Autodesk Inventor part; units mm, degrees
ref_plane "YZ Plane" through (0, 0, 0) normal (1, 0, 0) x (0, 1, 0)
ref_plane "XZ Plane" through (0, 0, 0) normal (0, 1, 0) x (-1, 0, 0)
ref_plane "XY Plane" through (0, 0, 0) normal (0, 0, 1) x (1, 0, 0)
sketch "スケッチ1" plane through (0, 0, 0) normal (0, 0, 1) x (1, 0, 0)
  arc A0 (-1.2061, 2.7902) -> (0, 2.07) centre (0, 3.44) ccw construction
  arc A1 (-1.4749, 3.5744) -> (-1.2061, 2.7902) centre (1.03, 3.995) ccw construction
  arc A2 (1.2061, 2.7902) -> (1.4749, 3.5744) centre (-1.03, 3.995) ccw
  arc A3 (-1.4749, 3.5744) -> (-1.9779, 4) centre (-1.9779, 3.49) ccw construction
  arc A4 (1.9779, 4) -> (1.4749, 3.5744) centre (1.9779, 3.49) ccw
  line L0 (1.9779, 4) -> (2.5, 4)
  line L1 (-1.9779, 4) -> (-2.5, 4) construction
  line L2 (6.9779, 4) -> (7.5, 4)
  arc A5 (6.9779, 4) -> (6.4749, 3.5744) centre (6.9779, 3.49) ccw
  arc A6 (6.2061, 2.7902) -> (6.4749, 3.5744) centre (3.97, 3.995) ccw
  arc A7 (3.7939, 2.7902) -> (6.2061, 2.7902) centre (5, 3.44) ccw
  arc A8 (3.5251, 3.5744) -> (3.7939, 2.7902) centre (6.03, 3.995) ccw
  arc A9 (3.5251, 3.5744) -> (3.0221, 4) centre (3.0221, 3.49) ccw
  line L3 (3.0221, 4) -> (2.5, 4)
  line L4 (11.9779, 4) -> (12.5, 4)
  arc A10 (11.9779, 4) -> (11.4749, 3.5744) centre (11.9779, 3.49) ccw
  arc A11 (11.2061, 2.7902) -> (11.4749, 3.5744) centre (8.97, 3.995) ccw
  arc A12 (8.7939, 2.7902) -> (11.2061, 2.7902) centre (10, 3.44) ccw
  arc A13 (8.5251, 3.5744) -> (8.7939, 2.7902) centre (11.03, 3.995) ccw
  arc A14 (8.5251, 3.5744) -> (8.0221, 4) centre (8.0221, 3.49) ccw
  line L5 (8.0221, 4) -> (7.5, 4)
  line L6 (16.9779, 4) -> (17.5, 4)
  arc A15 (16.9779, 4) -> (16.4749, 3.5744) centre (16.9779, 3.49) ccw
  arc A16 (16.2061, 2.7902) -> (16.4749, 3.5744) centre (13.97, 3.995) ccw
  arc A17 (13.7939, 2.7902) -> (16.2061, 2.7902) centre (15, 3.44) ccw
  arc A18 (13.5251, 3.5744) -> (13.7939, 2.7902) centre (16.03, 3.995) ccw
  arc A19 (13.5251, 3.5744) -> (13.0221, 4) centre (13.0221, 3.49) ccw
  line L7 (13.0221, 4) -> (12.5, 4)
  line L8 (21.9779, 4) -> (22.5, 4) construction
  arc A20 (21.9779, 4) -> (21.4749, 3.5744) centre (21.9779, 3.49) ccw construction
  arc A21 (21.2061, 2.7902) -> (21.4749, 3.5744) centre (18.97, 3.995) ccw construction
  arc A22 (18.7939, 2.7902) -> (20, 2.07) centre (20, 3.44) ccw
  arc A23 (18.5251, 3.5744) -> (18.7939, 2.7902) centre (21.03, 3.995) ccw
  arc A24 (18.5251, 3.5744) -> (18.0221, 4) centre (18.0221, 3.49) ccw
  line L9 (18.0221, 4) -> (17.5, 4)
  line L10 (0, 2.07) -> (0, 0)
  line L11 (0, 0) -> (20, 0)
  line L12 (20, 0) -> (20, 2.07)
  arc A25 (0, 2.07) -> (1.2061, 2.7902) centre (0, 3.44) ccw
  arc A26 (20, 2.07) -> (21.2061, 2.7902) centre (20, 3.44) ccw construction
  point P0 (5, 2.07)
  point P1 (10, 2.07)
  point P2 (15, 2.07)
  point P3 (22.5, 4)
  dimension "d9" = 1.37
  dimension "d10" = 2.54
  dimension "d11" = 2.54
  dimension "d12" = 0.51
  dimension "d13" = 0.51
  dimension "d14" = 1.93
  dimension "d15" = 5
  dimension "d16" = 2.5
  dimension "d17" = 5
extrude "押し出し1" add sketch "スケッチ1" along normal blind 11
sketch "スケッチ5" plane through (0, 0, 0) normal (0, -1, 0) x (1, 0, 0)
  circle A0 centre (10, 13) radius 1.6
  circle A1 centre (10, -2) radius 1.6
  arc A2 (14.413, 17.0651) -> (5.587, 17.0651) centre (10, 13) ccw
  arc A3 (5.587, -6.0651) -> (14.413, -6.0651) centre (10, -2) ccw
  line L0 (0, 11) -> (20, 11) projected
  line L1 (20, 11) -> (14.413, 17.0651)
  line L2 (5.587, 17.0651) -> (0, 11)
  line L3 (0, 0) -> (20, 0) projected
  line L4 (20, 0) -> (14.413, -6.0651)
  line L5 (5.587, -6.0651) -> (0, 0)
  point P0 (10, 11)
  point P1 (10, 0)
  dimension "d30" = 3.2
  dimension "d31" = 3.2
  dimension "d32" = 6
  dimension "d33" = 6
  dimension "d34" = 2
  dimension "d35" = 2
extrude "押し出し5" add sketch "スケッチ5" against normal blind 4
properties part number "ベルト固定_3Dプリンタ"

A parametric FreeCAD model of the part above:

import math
import FreeCAD as App
import Part
import Sketcher

doc = App.newDocument("Part")
body = doc.addObject("PartDesign::Body", "Body")

# Sketch on XY plane
sketch1 = body.newObject("Sketcher::SketchObject", "Sketch")
sketch1.AttachmentSupport = (doc.getObject("XY_Plane"), [""])
sketch1.MapMode = "FlatFace"
sketch1.addGeometry(Part.ArcOfCircle(Part.Circle(App.Vector(-1.028261, 3.994239, 0), App.Vector(0, 0, 1), 2.538125), math.radians(-28.319084), math.radians(-9.521239)), False)
sketch1.addGeometry(Part.ArcOfCircle(Part.Circle(App.Vector(0, 3.44, 0), App.Vector(0, 0, 1), 1.370006), math.radians(-90), math.radians(-28.314069)), False)
sketch1.addGeometry(Part.LineSegment(App.Vector(0, 2.07, 0), App.Vector(0, 0, 0)), False)
sketch1.addGeometry(Part.LineSegment(App.Vector(0, 0, 0), App.Vector(20, 0, 0)), False)
sketch1.addGeometry(Part.LineSegment(App.Vector(20, 0, 0), App.Vector(20, 2.07, 0)), False)
sketch1.addGeometry(Part.ArcOfCircle(Part.Circle(App.Vector(20, 3.44, 0), App.Vector(0, 0, 1), 1.37), math.radians(-151.685931), math.radians(-90)), False)
sketch1.addGeometry(Part.ArcOfCircle(Part.Circle(App.Vector(21.031843, 3.995467, 0), App.Vector(0, 0, 1), 2.541861), math.radians(-170.464821), math.radians(-151.694857)), False)
sketch1.addGeometry(Part.ArcOfCircle(Part.Circle(App.Vector(18.0221, 3.49, 0), App.Vector(0, 0, 1), 0.510032), math.radians(9.525114), math.radians(90)), False)
sketch1.addGeometry(Part.LineSegment(App.Vector(18.0221, 4, 0), App.Vector(16.9779, 4, 0)), False)
sketch1.addGeometry(Part.ArcOfCircle(Part.Circle(App.Vector(16.9779, 3.49, 0), App.Vector(0, 0, 1), 0.51), math.radians(90), math.radians(170.474886)), False)
sketch1.addGeometry(Part.ArcOfCircle(Part.Circle(App.Vector(13.971739, 3.994239, 0), App.Vector(0, 0, 1), 2.538125), math.radians(-28.319084), math.radians(-9.521239)), False)
sketch1.addGeometry(Part.ArcOfCircle(Part.Circle(App.Vector(15, 3.44, 0), App.Vector(0, 0, 1), 1.370006), math.radians(-151.685931), math.radians(-28.314069)), False)
sketch1.addGeometry(Part.ArcOfCircle(Part.Circle(App.Vector(16.031843, 3.995467, 0), App.Vector(0, 0, 1), 2.541861), math.radians(-170.464821), math.radians(-151.694857)), False)
sketch1.addGeometry(Part.ArcOfCircle(Part.Circle(App.Vector(13.0221, 3.49, 0), App.Vector(0, 0, 1), 0.510032), math.radians(9.525114), math.radians(90)), False)
sketch1.addGeometry(Part.LineSegment(App.Vector(13.0221, 4, 0), App.Vector(11.9779, 4, 0)), False)
sketch1.addGeometry(Part.ArcOfCircle(Part.Circle(App.Vector(11.9779, 3.49, 0), App.Vector(0, 0, 1), 0.51), math.radians(90), math.radians(170.474886)), False)
sketch1.addGeometry(Part.ArcOfCircle(Part.Circle(App.Vector(8.971739, 3.994239, 0), App.Vector(0, 0, 1), 2.538125), math.radians(-28.319084), math.radians(-9.521239)), False)
sketch1.addGeometry(Part.ArcOfCircle(Part.Circle(App.Vector(10, 3.44, 0), App.Vector(0, 0, 1), 1.370006), math.radians(-151.685931), math.radians(-28.314069)), False)
sketch1.addGeometry(Part.ArcOfCircle(Part.Circle(App.Vector(11.031843, 3.995467, 0), App.Vector(0, 0, 1), 2.541861), math.radians(-170.464821), math.radians(-151.694857)), False)
sketch1.addGeometry(Part.ArcOfCircle(Part.Circle(App.Vector(8.0221, 3.49, 0), App.Vector(0, 0, 1), 0.510032), math.radians(9.525114), math.radians(90)), False)
sketch1.addGeometry(Part.LineSegment(App.Vector(8.0221, 4, 0), App.Vector(6.9779, 4, 0)), False)
sketch1.addGeometry(Part.ArcOfCircle(Part.Circle(App.Vector(6.9779, 3.49, 0), App.Vector(0, 0, 1), 0.51), math.radians(90), math.radians(170.474886)), False)
sketch1.addGeometry(Part.ArcOfCircle(Part.Circle(App.Vector(3.971739, 3.994239, 0), App.Vector(0, 0, 1), 2.538125), math.radians(-28.319084), math.radians(-9.521239)), False)
sketch1.addGeometry(Part.ArcOfCircle(Part.Circle(App.Vector(5, 3.44, 0), App.Vector(0, 0, 1), 1.370006), math.radians(-151.685931), math.radians(-28.314069)), False)
sketch1.addGeometry(Part.ArcOfCircle(Part.Circle(App.Vector(6.031843, 3.995467, 0), App.Vector(0, 0, 1), 2.541861), math.radians(-170.464821), math.radians(-151.694857)), False)
sketch1.addGeometry(Part.ArcOfCircle(Part.Circle(App.Vector(3.0221, 3.49, 0), App.Vector(0, 0, 1), 0.510032), math.radians(9.525114), math.radians(90)), False)
sketch1.addGeometry(Part.LineSegment(App.Vector(3.0221, 4, 0), App.Vector(1.9779, 4, 0)), False)
sketch1.addGeometry(Part.ArcOfCircle(Part.Circle(App.Vector(1.9779, 3.49, 0), App.Vector(0, 0, 1), 0.51), math.radians(90), math.radians(170.474886)), False)
sketch1.addConstraint(Sketcher.Constraint("Coincident", 0, 1, 1, 2))
sketch1.addConstraint(Sketcher.Constraint("Coincident", 1, 1, 2, 1))
sketch1.addConstraint(Sketcher.Constraint("Coincident", 2, 2, 3, 1))
sketch1.addConstraint(Sketcher.Constraint("Coincident", 3, 2, 4, 1))
sketch1.addConstraint(Sketcher.Constraint("Coincident", 4, 2, 5, 2))
sketch1.addConstraint(Sketcher.Constraint("Coincident", 5, 1, 6, 2))
sketch1.addConstraint(Sketcher.Constraint("Coincident", 6, 1, 7, 1))
sketch1.addConstraint(Sketcher.Constraint("Coincident", 7, 2, 8, 1))
sketch1.addConstraint(Sketcher.Constraint("Coincident", 8, 2, 9, 1))
sketch1.addConstraint(Sketcher.Constraint("Coincident", 9, 2, 10, 2))
sketch1.addConstraint(Sketcher.Constraint("Coincident", 10, 1, 11, 2))
sketch1.addConstraint(Sketcher.Constraint("Coincident", 11, 1, 12, 2))
sketch1.addConstraint(Sketcher.Constraint("Coincident", 12, 1, 13, 1))
sketch1.addConstraint(Sketcher.Constraint("Coincident", 13, 2, 14, 1))
sketch1.addConstraint(Sketcher.Constraint("Coincident", 14, 2, 15, 1))
sketch1.addConstraint(Sketcher.Constraint("Coincident", 15, 2, 16, 2))
sketch1.addConstraint(Sketcher.Constraint("Coincident", 16, 1, 17, 2))
sketch1.addConstraint(Sketcher.Constraint("Coincident", 17, 1, 18, 2))
sketch1.addConstraint(Sketcher.Constraint("Coincident", 18, 1, 19, 1))
sketch1.addConstraint(Sketcher.Constraint("Coincident", 19, 2, 20, 1))
sketch1.addConstraint(Sketcher.Constraint("Coincident", 20, 2, 21, 1))
sketch1.addConstraint(Sketcher.Constraint("Coincident", 21, 2, 22, 2))
sketch1.addConstraint(Sketcher.Constraint("Coincident", 22, 1, 23, 2))
sketch1.addConstraint(Sketcher.Constraint("Coincident", 23, 1, 24, 2))
sketch1.addConstraint(Sketcher.Constraint("Coincident", 24, 1, 25, 1))
sketch1.addConstraint(Sketcher.Constraint("Coincident", 25, 2, 26, 1))
sketch1.addConstraint(Sketcher.Constraint("Coincident", 26, 2, 27, 1))
sketch1.addConstraint(Sketcher.Constraint("Coincident", 27, 2, 0, 2))
sketch1.addConstraint(Sketcher.Constraint("Vertical", 2))
sketch1.addConstraint(Sketcher.Constraint("Horizontal", 3))
sketch1.addConstraint(Sketcher.Constraint("Vertical", 4))
sketch1.addConstraint(Sketcher.Constraint("Horizontal", 8))
sketch1.addConstraint(Sketcher.Constraint("Horizontal", 14))
sketch1.addConstraint(Sketcher.Constraint("Horizontal", 20))
sketch1.addConstraint(Sketcher.Constraint("Horizontal", 26))
sketch1.addConstraint(Sketcher.Constraint("Coincident", 2, 2, -1, 1))
sketch1.addConstraint(Sketcher.Constraint("PointOnObject", 1, 3, -2))
sketch1.addConstraint(Sketcher.Constraint("Radius", 1, 1.37))
sketch1.addConstraint(Sketcher.Constraint("Radius", 5, 1.37))
sketch1.addConstraint(Sketcher.Constraint("Radius", 7, 0.51))
sketch1.addConstraint(Sketcher.Constraint("Radius", 9, 0.51))
sketch1.addConstraint(Sketcher.Constraint("Radius", 11, 1.37))
sketch1.addConstraint(Sketcher.Constraint("Radius", 13, 0.51))
sketch1.addConstraint(Sketcher.Constraint("Radius", 15, 0.51))
sketch1.addConstraint(Sketcher.Constraint("Radius", 17, 1.37))
sketch1.addConstraint(Sketcher.Constraint("Radius", 19, 0.51))
sketch1.addConstraint(Sketcher.Constraint("Radius", 21, 0.51))
sketch1.addConstraint(Sketcher.Constraint("Radius", 23, 1.37))
sketch1.addConstraint(Sketcher.Constraint("Radius", 25, 0.51))
sketch1.addConstraint(Sketcher.Constraint("Radius", 27, 0.51))
sketch1.addConstraint(Sketcher.Constraint("DistanceX", -1, 1, 23, 3, 5.0))
sketch1.addConstraint(Sketcher.Constraint("DistanceX", 11, 3, 5, 3, 5.0))
sketch1.addConstraint(Sketcher.Constraint("DistanceX", 13, 3, 7, 3, 5.0))
sketch1.addConstraint(Sketcher.Constraint("DistanceX", 15, 3, 9, 3, 5.0))
sketch1.addConstraint(Sketcher.Constraint("DistanceX", 16, 3, 10, 3, 5.0))
sketch1.addConstraint(Sketcher.Constraint("DistanceX", 17, 3, 11, 3, 5.0))
sketch1.addConstraint(Sketcher.Constraint("DistanceX", 19, 3, 13, 3, 5.0))
sketch1.addConstraint(Sketcher.Constraint("DistanceX", 21, 3, 15, 3, 5.0))
sketch1.addConstraint(Sketcher.Constraint("DistanceX", 0, 3, 22, 3, 5.0))
sketch1.addConstraint(Sketcher.Constraint("DistanceX", 22, 3, 16, 3, 5.0))
sketch1.addConstraint(Sketcher.Constraint("DistanceX", 3, 1, 3, 2, 20.0))
sketch1.addConstraint(Sketcher.Constraint("DistanceX", -1, 1, 5, 3, 20.0))
sketch1.addConstraint(Sketcher.Constraint("DistanceY", -1, 1, 7, 2, 4.0))
sketch1.addConstraint(Sketcher.Constraint("DistanceY", -1, 1, 13, 2, 4.0))
sketch1.addConstraint(Sketcher.Constraint("DistanceY", -1, 1, 19, 2, 4.0))
sketch1.addConstraint(Sketcher.Constraint("DistanceY", -1, 1, 25, 2, 4.0))
sketch1.addConstraint(Sketcher.Constraint("DistanceY", 2, 2, 2, 1, 2.07))
sketch1.addConstraint(Sketcher.Constraint("DistanceY", 4, 1, 4, 2, 2.07))
sketch1.addConstraint(Sketcher.Constraint("Radius", 0, 2.5381))
sketch1.addConstraint(Sketcher.Constraint("Radius", 6, 2.5419))
sketch1.addConstraint(Sketcher.Constraint("Radius", 10, 2.5381))
sketch1.addConstraint(Sketcher.Constraint("Radius", 12, 2.5419))
sketch1.addConstraint(Sketcher.Constraint("Radius", 16, 2.5381))
sketch1.addConstraint(Sketcher.Constraint("Radius", 18, 2.5419))
sketch1.addConstraint(Sketcher.Constraint("Radius", 22, 2.5381))
sketch1.addConstraint(Sketcher.Constraint("Radius", 24, 2.5419))
sketch1.addConstraint(Sketcher.Constraint("DistanceY", -1, 1, 11, 3, 3.44))
sketch1.addConstraint(Sketcher.Constraint("DistanceX", 0, 3, 6, 3, 22.06))
sketch1.addConstraint(Sketcher.Constraint("DistanceX", 22, 3, 24, 3, 2.06))
sketch1.addConstraint(Sketcher.Constraint("DistanceX", 8, 2, 8, 1, 1.0442))
sketch1.addConstraint(Sketcher.Constraint("DistanceX", 14, 2, 14, 1, 1.0442))
sketch1.addConstraint(Sketcher.Constraint("DistanceX", 20, 2, 20, 1, 1.0442))
sketch1.addConstraint(Sketcher.Constraint("DistanceX", 26, 2, 26, 1, 1.0442))
sketch1.addConstraint(Sketcher.Constraint("DistanceX", -1, 1, 7, 3, 18.022))
sketch1.addConstraint(Sketcher.Constraint("DistanceX", -1, 1, 0, 1, 1.206))
sketch1.addConstraint(Sketcher.Constraint("DistanceX", -1, 1, 5, 1, 18.794))
sketch1.addConstraint(Sketcher.Constraint("DistanceX", -1, 1, 6, 1, 18.525))
sketch1.addConstraint(Sketcher.Constraint("DistanceX", -1, 1, 7, 2, 18.022))
sketch1.addConstraint(Sketcher.Constraint("DistanceX", -1, 1, 9, 2, 16.475))
sketch1.addConstraint(Sketcher.Constraint("DistanceX", -1, 1, 10, 1, 16.206))
sketch1.addConstraint(Sketcher.Constraint("DistanceX", -1, 1, 11, 1, 13.794))
sketch1.addConstraint(Sketcher.Constraint("DistanceX", -1, 1, 12, 1, 13.525))
sketch1.addConstraint(Sketcher.Constraint("DistanceX", -1, 1, 13, 2, 13.022))
sketch1.addConstraint(Sketcher.Constraint("DistanceX", -1, 1, 15, 2, 11.475))
sketch1.addConstraint(Sketcher.Constraint("DistanceX", -1, 1, 16, 1, 11.206))
sketch1.addConstraint(Sketcher.Constraint("DistanceX", -1, 1, 17, 1, 8.794))
sketch1.addConstraint(Sketcher.Constraint("DistanceX", -1, 1, 18, 1, 8.525))
sketch1.addConstraint(Sketcher.Constraint("DistanceX", -1, 1, 19, 2, 8.022))
sketch1.addConstraint(Sketcher.Constraint("DistanceX", -1, 1, 21, 2, 6.475))
sketch1.addConstraint(Sketcher.Constraint("DistanceX", -1, 1, 22, 1, 6.206))
sketch1.addConstraint(Sketcher.Constraint("DistanceX", -1, 1, 23, 1, 3.794))
sketch1.addConstraint(Sketcher.Constraint("DistanceX", -1, 1, 24, 1, 3.525))
sketch1.addConstraint(Sketcher.Constraint("DistanceX", -1, 1, 25, 2, 3.022))
sketch1.addConstraint(Sketcher.Constraint("DistanceX", -1, 1, 27, 2, 1.475))
pad1 = body.newObject("PartDesign::Pad", "Pad")
pad1.Profile = sketch1
pad1.Length = 11

# Sketch on XZ plane
sketch2 = body.newObject("Sketcher::SketchObject", "Sketch001")
sketch2.AttachmentSupport = (doc.getObject("XZ_Plane"), [""])
sketch2.MapMode = "FlatFace"
sketch2.addGeometry(Part.LineSegment(App.Vector(20, 11, 0), App.Vector(14.4, 17.1, 0)), False)
sketch2.addGeometry(Part.ArcOfCircle(Part.Circle(App.Vector(10, 13, 0), App.Vector(0, 0, 1), 6), math.radians(43), math.radians(137)), False)
sketch2.addGeometry(Part.LineSegment(App.Vector(5.6, 17.1, 0), App.Vector(0, 11, 0)), False)
sketch2.addGeometry(Part.LineSegment(App.Vector(0, 11, 0), App.Vector(20, 11, 0)), False)
sketch2.addGeometry(Part.Circle(App.Vector(10, 13, 0), App.Vector(0, 0, 1), 1.6), False)
sketch2.addGeometry(Part.LineSegment(App.Vector(0, 0, 0), App.Vector(5.6, -6.1, 0)), False)
sketch2.addGeometry(Part.ArcOfCircle(Part.Circle(App.Vector(10, -2, 0), App.Vector(0, 0, 1), 6), math.radians(-137), math.radians(-43)), False)
sketch2.addGeometry(Part.LineSegment(App.Vector(14.4, -6.1, 0), App.Vector(20, 0, 0)), False)
sketch2.addGeometry(Part.LineSegment(App.Vector(20, 0, 0), App.Vector(0, 0, 0)), False)
sketch2.addGeometry(Part.Circle(App.Vector(10, -2, 0), App.Vector(0, 0, 1), 1.6), False)
sketch2.addConstraint(Sketcher.Constraint("Tangent", 0, 2, 1, 1))
sketch2.addConstraint(Sketcher.Constraint("Tangent", 1, 2, 2, 1))
sketch2.addConstraint(Sketcher.Constraint("Coincident", 2, 2, 3, 1))
sketch2.addConstraint(Sketcher.Constraint("Coincident", 3, 2, 0, 1))
sketch2.addConstraint(Sketcher.Constraint("Tangent", 5, 2, 6, 1))
sketch2.addConstraint(Sketcher.Constraint("Tangent", 6, 2, 7, 1))
sketch2.addConstraint(Sketcher.Constraint("Coincident", 7, 2, 8, 1))
sketch2.addConstraint(Sketcher.Constraint("Coincident", 8, 2, 5, 1))
sketch2.addConstraint(Sketcher.Constraint("Horizontal", 3))
sketch2.addConstraint(Sketcher.Constraint("Horizontal", 8))
sketch2.addConstraint(Sketcher.Constraint("Coincident", 8, 2, -1, 1))
sketch2.addConstraint(Sketcher.Constraint("Coincident", 4, 3, 1, 3))
sketch2.addConstraint(Sketcher.Constraint("Coincident", 9, 3, 6, 3))
sketch2.addConstraint(Sketcher.Constraint("Equal", 1, 6))
sketch2.addConstraint(Sketcher.Constraint("Equal", 4, 9))
sketch2.addConstraint(Sketcher.Constraint("PointOnObject", 2, 2, -2))
sketch2.addConstraint(Sketcher.Constraint("Parallel", 0, 5))
sketch2.addConstraint(Sketcher.Constraint("Parallel", 2, 7))
sketch2.addConstraint(Sketcher.Constraint("Horizontal", 0, 2, 1, 2))
sketch2.addConstraint(Sketcher.Constraint("Vertical", 4, 3, 6, 3))
sketch2.addConstraint(Sketcher.Constraint("Radius", 1, 6.0))
sketch2.addConstraint(Sketcher.Constraint("Diameter", 4, 3.2))
sketch2.addConstraint(Sketcher.Constraint("DistanceY", 6, 3, -1, 1, 2.0))
sketch2.addConstraint(Sketcher.Constraint("DistanceX", 3, 1, 3, 2, 20.0))
sketch2.addConstraint(Sketcher.Constraint("DistanceY", -1, 1, 1, 3, 13.0))
pad2 = body.newObject("PartDesign::Pad", "Pad001")
pad2.Profile = sketch2
pad2.Length = 4
pad2.Reversed = True

doc.recompute()
